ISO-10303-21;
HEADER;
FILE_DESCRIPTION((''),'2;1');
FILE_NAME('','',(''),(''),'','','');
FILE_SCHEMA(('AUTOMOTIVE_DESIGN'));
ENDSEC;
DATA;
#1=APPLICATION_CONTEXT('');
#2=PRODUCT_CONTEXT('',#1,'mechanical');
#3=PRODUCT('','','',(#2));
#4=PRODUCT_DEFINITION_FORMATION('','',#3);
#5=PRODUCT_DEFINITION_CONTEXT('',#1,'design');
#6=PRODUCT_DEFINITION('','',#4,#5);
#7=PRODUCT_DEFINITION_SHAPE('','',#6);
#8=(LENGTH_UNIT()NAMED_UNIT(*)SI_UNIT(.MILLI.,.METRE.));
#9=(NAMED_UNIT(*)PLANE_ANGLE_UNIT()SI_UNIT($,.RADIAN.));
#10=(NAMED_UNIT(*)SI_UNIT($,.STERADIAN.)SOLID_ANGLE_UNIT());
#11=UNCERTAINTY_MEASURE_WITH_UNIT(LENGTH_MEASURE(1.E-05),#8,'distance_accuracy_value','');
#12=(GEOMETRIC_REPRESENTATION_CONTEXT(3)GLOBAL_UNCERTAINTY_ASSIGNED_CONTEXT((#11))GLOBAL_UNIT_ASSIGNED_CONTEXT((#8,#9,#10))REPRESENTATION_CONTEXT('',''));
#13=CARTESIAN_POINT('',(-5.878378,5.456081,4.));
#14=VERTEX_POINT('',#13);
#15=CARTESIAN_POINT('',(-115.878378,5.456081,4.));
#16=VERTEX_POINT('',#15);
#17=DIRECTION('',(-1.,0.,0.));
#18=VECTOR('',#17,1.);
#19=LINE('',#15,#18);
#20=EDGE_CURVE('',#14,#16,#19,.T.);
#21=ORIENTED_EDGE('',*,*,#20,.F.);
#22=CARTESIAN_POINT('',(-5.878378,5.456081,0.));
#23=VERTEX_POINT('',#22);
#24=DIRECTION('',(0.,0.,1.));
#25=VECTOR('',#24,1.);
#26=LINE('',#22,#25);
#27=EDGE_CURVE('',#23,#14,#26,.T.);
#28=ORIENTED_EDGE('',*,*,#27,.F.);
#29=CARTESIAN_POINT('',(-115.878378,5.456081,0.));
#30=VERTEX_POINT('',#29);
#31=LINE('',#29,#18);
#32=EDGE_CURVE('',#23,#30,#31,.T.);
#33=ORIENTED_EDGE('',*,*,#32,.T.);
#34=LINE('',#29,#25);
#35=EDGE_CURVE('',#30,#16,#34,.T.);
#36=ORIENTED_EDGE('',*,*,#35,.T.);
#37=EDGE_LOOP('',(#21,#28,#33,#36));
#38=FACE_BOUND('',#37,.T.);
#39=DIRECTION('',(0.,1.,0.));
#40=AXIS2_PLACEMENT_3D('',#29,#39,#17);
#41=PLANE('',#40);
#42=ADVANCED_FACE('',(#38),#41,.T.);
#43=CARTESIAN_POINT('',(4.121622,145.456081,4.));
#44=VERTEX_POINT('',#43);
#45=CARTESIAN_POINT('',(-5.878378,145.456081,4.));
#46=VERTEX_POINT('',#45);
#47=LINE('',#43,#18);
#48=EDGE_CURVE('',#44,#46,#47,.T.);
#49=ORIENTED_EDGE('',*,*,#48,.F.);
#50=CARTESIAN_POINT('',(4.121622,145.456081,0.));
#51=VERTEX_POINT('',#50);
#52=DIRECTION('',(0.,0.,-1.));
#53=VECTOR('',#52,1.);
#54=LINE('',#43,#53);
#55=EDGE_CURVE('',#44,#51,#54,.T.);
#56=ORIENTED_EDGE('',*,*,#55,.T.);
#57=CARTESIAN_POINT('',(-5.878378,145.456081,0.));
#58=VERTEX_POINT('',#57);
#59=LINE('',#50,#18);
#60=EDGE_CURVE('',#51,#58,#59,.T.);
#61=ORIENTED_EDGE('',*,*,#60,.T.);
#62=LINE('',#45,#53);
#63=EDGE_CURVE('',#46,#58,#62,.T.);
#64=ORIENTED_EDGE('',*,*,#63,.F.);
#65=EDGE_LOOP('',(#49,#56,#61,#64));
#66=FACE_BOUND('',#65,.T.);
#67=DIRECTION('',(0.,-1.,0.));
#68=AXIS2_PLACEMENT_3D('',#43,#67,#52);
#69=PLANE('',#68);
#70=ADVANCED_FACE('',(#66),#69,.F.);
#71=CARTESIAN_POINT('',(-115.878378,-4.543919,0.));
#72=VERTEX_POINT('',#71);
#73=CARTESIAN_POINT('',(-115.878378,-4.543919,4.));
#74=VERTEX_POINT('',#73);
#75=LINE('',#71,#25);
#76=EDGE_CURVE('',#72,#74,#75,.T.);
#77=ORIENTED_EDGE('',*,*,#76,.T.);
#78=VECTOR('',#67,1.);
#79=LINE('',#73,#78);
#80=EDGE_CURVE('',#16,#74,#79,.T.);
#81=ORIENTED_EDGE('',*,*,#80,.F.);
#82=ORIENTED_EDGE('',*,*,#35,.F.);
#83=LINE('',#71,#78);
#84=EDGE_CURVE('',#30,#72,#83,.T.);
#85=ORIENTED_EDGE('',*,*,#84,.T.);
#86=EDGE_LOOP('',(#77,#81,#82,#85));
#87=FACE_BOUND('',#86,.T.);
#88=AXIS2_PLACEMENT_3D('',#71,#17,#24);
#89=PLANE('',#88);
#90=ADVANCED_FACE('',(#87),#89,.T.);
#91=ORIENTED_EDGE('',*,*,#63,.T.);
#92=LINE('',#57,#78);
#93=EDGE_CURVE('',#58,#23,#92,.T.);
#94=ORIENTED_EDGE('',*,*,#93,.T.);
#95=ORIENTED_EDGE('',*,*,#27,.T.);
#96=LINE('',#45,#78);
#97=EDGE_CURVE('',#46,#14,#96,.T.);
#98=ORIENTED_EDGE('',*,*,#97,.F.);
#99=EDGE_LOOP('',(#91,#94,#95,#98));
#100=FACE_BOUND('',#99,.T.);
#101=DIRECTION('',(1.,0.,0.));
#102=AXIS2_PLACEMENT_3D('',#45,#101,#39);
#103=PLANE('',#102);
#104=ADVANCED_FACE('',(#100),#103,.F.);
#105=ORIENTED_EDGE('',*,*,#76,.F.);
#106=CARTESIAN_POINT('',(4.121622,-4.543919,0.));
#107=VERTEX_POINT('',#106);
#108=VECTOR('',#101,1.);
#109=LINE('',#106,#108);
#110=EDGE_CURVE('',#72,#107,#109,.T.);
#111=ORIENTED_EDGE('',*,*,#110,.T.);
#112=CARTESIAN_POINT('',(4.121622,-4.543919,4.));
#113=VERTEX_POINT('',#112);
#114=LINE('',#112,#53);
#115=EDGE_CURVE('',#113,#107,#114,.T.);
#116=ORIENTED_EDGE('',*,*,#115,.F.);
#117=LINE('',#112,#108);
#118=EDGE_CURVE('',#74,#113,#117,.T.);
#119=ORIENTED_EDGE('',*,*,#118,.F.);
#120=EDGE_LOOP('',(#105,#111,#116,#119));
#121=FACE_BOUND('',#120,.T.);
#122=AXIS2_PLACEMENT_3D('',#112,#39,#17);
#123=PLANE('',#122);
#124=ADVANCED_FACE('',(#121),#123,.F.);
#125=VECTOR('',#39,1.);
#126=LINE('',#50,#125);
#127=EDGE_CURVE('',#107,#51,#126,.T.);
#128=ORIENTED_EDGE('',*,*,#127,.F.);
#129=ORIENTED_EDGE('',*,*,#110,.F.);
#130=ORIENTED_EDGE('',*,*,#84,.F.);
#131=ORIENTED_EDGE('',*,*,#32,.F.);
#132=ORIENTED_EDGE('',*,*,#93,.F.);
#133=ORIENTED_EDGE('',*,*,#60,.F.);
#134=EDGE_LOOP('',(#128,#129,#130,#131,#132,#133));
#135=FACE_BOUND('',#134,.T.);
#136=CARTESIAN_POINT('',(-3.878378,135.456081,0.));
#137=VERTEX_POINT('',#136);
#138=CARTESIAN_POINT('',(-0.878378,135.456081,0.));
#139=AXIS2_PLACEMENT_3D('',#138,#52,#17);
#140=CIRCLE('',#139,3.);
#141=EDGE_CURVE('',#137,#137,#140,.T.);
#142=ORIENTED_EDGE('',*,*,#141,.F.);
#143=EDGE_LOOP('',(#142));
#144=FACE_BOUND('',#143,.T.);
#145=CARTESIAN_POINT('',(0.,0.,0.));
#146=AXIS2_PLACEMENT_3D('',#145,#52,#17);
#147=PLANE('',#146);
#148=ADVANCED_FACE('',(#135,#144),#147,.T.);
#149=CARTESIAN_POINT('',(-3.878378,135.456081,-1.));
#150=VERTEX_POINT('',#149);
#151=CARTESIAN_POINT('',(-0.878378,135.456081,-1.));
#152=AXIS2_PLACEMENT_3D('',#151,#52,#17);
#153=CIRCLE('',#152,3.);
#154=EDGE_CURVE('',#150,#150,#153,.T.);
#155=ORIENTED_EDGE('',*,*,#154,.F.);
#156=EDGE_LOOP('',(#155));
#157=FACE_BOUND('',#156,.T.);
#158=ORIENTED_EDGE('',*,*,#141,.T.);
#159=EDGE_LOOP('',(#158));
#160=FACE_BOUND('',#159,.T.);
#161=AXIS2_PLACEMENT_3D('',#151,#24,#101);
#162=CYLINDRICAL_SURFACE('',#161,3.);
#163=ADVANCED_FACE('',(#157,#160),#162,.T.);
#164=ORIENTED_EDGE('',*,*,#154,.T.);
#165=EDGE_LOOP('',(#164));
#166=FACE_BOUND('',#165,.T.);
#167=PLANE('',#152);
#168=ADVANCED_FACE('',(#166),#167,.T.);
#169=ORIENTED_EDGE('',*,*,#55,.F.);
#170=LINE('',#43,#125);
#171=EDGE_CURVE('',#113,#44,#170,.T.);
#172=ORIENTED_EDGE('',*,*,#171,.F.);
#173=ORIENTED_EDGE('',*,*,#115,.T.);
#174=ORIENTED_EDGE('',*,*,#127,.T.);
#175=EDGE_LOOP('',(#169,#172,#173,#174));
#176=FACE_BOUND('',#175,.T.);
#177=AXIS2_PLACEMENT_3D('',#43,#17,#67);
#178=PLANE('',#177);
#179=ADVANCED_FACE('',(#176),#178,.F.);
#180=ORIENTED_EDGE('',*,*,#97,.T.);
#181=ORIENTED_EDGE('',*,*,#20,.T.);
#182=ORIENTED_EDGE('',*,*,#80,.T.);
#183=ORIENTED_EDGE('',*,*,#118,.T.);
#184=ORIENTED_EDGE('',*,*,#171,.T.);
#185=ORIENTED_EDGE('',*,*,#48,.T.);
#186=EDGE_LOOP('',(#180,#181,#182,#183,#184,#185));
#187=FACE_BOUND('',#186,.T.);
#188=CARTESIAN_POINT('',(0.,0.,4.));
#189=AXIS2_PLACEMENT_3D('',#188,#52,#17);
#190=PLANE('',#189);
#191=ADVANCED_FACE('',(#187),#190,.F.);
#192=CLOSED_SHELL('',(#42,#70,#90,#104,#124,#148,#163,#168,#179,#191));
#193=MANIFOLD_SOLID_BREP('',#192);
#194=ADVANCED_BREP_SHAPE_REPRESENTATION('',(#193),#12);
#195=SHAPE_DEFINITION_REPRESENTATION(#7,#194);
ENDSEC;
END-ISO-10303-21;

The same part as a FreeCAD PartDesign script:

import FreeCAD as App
import Part
import Sketcher
Q = App.Units.Quantity

doc = App.newDocument("Part")
params = doc.addObject("Spreadsheet::Sheet", "Params")
for row, (alias, value) in enumerate([
    ("sketch1_width", "10 mm"),
    ("sketch1_height", "150 mm"),
    ("pad1_length", "4 mm"),
    ("sketch2_width", "110 mm"),
    ("sketch2_height", "10 mm"),
    ("pad2_length", "4 mm"),
    ("sketch3_diameter", "6 mm"),
    ("pad3_length", "1 mm"),
], start=1):
    params.set(f"A{row}", alias)
    params.set(f"B{row}", "=" + value)
    params.setAlias(f"B{row}", alias)

body = doc.addObject("PartDesign::Body", "Body")

# Sketch on XY plane
sketch1 = body.newObject("Sketcher::SketchObject", "Sketch")
sketch1.AttachmentSupport = (doc.getObject("XY_Plane"), [""])
sketch1.MapMode = "FlatFace"
sketch1.addGeometry(Part.LineSegment(App.Vector(-5.878378, 145.456081, 0), App.Vector(-5.878378, -4.543919, 0)), False)
sketch1.addGeometry(Part.LineSegment(App.Vector(-5.878378, -4.543919, 0), App.Vector(4.121622, -4.543919, 0)), False)
sketch1.addGeometry(Part.LineSegment(App.Vector(4.121622, -4.543919, 0), App.Vector(4.121622, 145.456081, 0)), False)
sketch1.addGeometry(Part.LineSegment(App.Vector(4.121622, 145.456081, 0), App.Vector(-5.878378, 145.456081, 0)), False)
sketch1.addConstraint(Sketcher.Constraint("Coincident", 0, 2, 1, 1))
sketch1.addConstraint(Sketcher.Constraint("Coincident", 1, 2, 2, 1))
sketch1.addConstraint(Sketcher.Constraint("Coincident", 2, 2, 3, 1))
sketch1.addConstraint(Sketcher.Constraint("Coincident", 3, 2, 0, 1))
sketch1.addConstraint(Sketcher.Constraint("Vertical", 0))
sketch1.addConstraint(Sketcher.Constraint("Horizontal", 1))
sketch1.addConstraint(Sketcher.Constraint("Vertical", 2))
sketch1.addConstraint(Sketcher.Constraint("Horizontal", 3))
sketch1.addConstraint(Sketcher.Constraint("DistanceX", 1, 1, 1, 2, Q("10 mm")))
sketch1.addConstraint(Sketcher.Constraint("DistanceY", 0, 2, 0, 1, Q("150 mm")))
sketch1.addConstraint(Sketcher.Constraint("DistanceX", 0, 2, -1, 1, Q("5.878378 mm")))
sketch1.addConstraint(Sketcher.Constraint("DistanceY", 0, 2, -1, 1, Q("4.543919 mm")))
sketch1.setExpression("Constraints[8]", "Params.sketch1_width")
sketch1.setExpression("Constraints[9]", "Params.sketch1_height")
pad1 = body.newObject("PartDesign::Pad", "Pad")
pad1.Profile = sketch1
pad1.setExpression("Length", "Params.pad1_length")

# Sketch on XY plane
sketch2 = body.newObject("Sketcher::SketchObject", "Sketch001")
sketch2.AttachmentSupport = (doc.getObject("XY_Plane"), [""])
sketch2.MapMode = "FlatFace"
sketch2.AttachmentOffset = App.Placement(App.Vector(0, 0, 4), App.Rotation())
sketch2.addGeometry(Part.LineSegment(App.Vector(-115.878378, 5.456081, 0), App.Vector(-115.878378, -4.543919, 0)), False)
sketch2.addGeometry(Part.LineSegment(App.Vector(-115.878378, -4.543919, 0), App.Vector(-5.878378, -4.543919, 0)), False)
sketch2.addGeometry(Part.LineSegment(App.Vector(-5.878378, -4.543919, 0), App.Vector(-5.878378, 5.456081, 0)), False)
sketch2.addGeometry(Part.LineSegment(App.Vector(-5.878378, 5.456081, 0), App.Vector(-115.878378, 5.456081, 0)), False)
sketch2.addConstraint(Sketcher.Constraint("Coincident", 0, 2, 1, 1))
sketch2.addConstraint(Sketcher.Constraint("Coincident", 1, 2, 2, 1))
sketch2.addConstraint(Sketcher.Constraint("Coincident", 2, 2, 3, 1))
sketch2.addConstraint(Sketcher.Constraint("Coincident", 3, 2, 0, 1))
sketch2.addConstraint(Sketcher.Constraint("Vertical", 0))
sketch2.addConstraint(Sketcher.Constraint("Horizontal", 1))
sketch2.addConstraint(Sketcher.Constraint("Vertical", 2))
sketch2.addConstraint(Sketcher.Constraint("Horizontal", 3))
sketch2.addConstraint(Sketcher.Constraint("DistanceX", 1, 1, 1, 2, Q("110 mm")))
sketch2.addConstraint(Sketcher.Constraint("DistanceY", 0, 2, 0, 1, Q("10 mm")))
sketch2.addConstraint(Sketcher.Constraint("DistanceX", 0, 2, -1, 1, Q("115.878378 mm")))
sketch2.addConstraint(Sketcher.Constraint("DistanceY", 0, 2, -1, 1, Q("4.543919 mm")))
sketch2.setExpression("Constraints[8]", "Params.sketch2_width")
sketch2.setExpression("Constraints[9]", "Params.sketch2_height")
pad2 = body.newObject("PartDesign::Pad", "Pad001")
pad2.Profile = sketch2
pad2.setExpression("Length", "Params.pad2_length")
pad2.Reversed = True

# Sketch on XY plane
sketch3 = body.newObject("Sketcher::SketchObject", "Sketch002")
sketch3.AttachmentSupport = (doc.getObject("XY_Plane"), [""])
sketch3.MapMode = "FlatFace"
sketch3.addGeometry(Part.Circle(App.Vector(-0.878378, 135.456081, 0), App.Vector(0, 0, 1), 3), False)
sketch3.addConstraint(Sketcher.Constraint("Diameter", 0, Q("6 mm")))
sketch3.addConstraint(Sketcher.Constraint("DistanceX", 0, 3, -1, 1, Q("0.878378 mm")))
sketch3.addConstraint(Sketcher.Constraint("DistanceY", -1, 1, 0, 3, Q("135.456081 mm")))
sketch3.setExpression("Constraints[0]", "Params.sketch3_diameter")
pad3 = body.newObject("PartDesign::Pad", "Pad002")
pad3.Profile = sketch3
pad3.setExpression("Length", "Params.pad3_length")
pad3.Reversed = True

doc.recompute()
